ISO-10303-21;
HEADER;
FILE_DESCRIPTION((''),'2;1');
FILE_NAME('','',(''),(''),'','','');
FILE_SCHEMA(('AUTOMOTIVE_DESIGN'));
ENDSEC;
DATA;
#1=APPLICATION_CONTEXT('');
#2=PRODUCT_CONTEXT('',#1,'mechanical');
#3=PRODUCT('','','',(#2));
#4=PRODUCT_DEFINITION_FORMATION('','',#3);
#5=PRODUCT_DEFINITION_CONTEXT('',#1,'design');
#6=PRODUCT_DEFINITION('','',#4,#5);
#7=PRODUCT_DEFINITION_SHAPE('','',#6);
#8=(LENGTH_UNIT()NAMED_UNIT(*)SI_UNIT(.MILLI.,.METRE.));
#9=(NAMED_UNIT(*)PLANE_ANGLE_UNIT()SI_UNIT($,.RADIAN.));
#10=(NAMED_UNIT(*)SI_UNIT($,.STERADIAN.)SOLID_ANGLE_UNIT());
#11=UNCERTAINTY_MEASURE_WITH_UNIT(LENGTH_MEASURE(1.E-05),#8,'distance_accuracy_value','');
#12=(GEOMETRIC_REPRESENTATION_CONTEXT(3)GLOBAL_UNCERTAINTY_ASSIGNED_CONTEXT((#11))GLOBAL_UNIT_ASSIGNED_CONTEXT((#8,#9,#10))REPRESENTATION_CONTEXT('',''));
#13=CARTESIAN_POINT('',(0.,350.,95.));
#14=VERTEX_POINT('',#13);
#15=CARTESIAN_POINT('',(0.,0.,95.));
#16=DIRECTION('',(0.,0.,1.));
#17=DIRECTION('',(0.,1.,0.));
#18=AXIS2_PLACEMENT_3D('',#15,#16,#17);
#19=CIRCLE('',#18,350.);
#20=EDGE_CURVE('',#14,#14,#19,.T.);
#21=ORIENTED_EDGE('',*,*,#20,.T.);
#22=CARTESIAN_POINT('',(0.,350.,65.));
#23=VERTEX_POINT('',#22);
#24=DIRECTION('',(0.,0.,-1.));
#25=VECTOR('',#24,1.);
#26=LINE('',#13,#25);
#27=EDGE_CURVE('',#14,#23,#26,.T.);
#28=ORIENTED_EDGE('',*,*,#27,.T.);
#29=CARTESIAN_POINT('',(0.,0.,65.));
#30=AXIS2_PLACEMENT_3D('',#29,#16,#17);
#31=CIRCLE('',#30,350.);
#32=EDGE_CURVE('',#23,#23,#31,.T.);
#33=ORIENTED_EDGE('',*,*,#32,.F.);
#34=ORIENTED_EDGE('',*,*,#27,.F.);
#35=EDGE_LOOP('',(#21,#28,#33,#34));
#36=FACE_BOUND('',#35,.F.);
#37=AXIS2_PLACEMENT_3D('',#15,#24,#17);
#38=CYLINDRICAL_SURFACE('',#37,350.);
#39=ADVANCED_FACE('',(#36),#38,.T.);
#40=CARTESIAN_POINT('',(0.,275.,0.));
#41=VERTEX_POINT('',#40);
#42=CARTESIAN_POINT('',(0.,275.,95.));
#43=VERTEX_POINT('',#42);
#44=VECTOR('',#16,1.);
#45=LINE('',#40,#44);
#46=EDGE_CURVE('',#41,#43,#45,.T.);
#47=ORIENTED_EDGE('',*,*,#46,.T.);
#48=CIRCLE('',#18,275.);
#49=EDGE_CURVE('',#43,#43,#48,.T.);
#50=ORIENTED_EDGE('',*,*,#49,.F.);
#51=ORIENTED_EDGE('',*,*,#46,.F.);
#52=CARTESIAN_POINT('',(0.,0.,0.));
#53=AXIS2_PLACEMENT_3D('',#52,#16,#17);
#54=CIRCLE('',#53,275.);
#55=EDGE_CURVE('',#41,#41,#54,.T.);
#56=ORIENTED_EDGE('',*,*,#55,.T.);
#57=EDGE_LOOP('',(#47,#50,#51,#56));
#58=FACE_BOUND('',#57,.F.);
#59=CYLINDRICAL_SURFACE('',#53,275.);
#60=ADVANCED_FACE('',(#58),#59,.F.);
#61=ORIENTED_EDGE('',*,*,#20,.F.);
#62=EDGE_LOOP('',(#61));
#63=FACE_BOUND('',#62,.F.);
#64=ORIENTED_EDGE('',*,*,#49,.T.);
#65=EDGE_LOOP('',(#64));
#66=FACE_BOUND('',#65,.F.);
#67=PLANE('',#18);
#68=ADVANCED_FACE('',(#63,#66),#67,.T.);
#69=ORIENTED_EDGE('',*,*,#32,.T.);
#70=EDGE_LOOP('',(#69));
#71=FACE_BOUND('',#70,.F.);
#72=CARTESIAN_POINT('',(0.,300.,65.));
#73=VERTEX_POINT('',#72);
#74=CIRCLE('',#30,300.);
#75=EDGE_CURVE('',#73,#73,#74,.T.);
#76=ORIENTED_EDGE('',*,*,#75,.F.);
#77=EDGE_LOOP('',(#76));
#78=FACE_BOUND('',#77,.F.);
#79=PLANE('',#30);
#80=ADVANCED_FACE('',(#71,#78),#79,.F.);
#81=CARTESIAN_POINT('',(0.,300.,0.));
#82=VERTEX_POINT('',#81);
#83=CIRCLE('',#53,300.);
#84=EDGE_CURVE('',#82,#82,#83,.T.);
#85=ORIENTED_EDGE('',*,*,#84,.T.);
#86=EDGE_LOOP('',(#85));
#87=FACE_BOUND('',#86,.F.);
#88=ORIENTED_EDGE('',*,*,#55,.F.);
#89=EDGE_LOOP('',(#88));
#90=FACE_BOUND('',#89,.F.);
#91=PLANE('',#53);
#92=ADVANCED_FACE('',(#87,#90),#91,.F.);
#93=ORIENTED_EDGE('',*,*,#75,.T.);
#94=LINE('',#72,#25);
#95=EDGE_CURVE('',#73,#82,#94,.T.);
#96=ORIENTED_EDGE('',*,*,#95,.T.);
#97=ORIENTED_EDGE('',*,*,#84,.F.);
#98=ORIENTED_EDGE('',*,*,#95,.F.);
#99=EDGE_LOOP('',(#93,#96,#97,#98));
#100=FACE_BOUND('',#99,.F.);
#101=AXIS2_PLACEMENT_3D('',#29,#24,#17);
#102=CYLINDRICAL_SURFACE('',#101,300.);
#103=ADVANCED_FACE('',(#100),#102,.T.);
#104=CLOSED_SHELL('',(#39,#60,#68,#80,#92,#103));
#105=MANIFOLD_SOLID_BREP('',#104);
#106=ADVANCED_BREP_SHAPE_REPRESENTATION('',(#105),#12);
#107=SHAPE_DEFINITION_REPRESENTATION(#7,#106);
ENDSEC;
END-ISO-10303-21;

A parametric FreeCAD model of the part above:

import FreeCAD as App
import Part
import Sketcher
Q = App.Units.Quantity

doc = App.newDocument("Part")
body = doc.addObject("PartDesign::Body", "Body")

sketch1 = body.newObject("Sketcher::SketchObject", "Sketch")
sketch1.AttachmentSupport = (doc.getObject("YZ_Plane"), [""])
sketch1.MapMode = "FlatFace"
sketch1.addGeometry(Part.LineSegment(App.Vector(350, 95, 0), App.Vector(0, 95, 0)), False)
sketch1.addGeometry(Part.LineSegment(App.Vector(0, 95, 0), App.Vector(0, 0, 0)), False)
sketch1.addGeometry(Part.LineSegment(App.Vector(0, 0, 0), App.Vector(300, 0, 0)), False)
sketch1.addGeometry(Part.LineSegment(App.Vector(300, 0, 0), App.Vector(300, 65, 0)), False)
sketch1.addGeometry(Part.LineSegment(App.Vector(300, 65, 0), App.Vector(350, 65, 0)), False)
sketch1.addGeometry(Part.LineSegment(App.Vector(350, 65, 0), App.Vector(350, 95, 0)), False)
sketch1.addConstraint(Sketcher.Constraint("Coincident", 0, 2, 1, 1))
sketch1.addConstraint(Sketcher.Constraint("Coincident", 1, 2, 2, 1))
sketch1.addConstraint(Sketcher.Constraint("Coincident", 2, 2, 3, 1))
sketch1.addConstraint(Sketcher.Constraint("Coincident", 3, 2, 4, 1))
sketch1.addConstraint(Sketcher.Constraint("Coincident", 4, 2, 5, 1))
sketch1.addConstraint(Sketcher.Constraint("Coincident", 5, 2, 0, 1))
sketch1.addConstraint(Sketcher.Constraint("Horizontal", 0))
sketch1.addConstraint(Sketcher.Constraint("Vertical", 1))
sketch1.addConstraint(Sketcher.Constraint("Horizontal", 2))
sketch1.addConstraint(Sketcher.Constraint("Vertical", 3))
sketch1.addConstraint(Sketcher.Constraint("Horizontal", 4))
sketch1.addConstraint(Sketcher.Constraint("Vertical", 5))
sketch1.addConstraint(Sketcher.Constraint("Coincident", 1, 2, -1, 1))
sketch1.addConstraint(Sketcher.Constraint("DistanceY", 3, 1, 3, 2, Q("65 mm")))
sketch1.addConstraint(Sketcher.Constraint("DistanceY", 5, 1, 5, 2, Q("30 mm")))
sketch1.addConstraint(Sketcher.Constraint("DistanceX", 0, 2, 0, 1, Q("350 mm")))
sketch1.addConstraint(Sketcher.Constraint("DistanceX", 2, 1, 2, 2, Q("300 mm")))
revolution = body.newObject("PartDesign::Revolution", "Revolution")
revolution.Profile = sketch1
revolution.ReferenceAxis = (sketch1, ["V_Axis"])
revolution.Angle = 360

sketch2 = body.newObject("Sketcher::SketchObject", "Sketch001")
sketch2.AttachmentSupport = (doc.getObject("XY_Plane"), [""])
sketch2.MapMode = "FlatFace"
sketch2.addGeometry(Part.Circle(App.Vector(0, 0, 0), App.Vector(0, 0, 1), 275), False)
sketch2.addConstraint(Sketcher.Constraint("Coincident", 0, 3, -1, 1))
sketch2.addConstraint(Sketcher.Constraint("Diameter", 0, Q("550 mm")))
doc.recompute()
hole = body.newObject("PartDesign::Hole", "Hole")
hole.Profile = sketch2
hole.ThreadType = "None"
hole.Diameter = 550
hole.DepthType = "ThroughAll"
hole.Reversed = True

doc.recompute()
